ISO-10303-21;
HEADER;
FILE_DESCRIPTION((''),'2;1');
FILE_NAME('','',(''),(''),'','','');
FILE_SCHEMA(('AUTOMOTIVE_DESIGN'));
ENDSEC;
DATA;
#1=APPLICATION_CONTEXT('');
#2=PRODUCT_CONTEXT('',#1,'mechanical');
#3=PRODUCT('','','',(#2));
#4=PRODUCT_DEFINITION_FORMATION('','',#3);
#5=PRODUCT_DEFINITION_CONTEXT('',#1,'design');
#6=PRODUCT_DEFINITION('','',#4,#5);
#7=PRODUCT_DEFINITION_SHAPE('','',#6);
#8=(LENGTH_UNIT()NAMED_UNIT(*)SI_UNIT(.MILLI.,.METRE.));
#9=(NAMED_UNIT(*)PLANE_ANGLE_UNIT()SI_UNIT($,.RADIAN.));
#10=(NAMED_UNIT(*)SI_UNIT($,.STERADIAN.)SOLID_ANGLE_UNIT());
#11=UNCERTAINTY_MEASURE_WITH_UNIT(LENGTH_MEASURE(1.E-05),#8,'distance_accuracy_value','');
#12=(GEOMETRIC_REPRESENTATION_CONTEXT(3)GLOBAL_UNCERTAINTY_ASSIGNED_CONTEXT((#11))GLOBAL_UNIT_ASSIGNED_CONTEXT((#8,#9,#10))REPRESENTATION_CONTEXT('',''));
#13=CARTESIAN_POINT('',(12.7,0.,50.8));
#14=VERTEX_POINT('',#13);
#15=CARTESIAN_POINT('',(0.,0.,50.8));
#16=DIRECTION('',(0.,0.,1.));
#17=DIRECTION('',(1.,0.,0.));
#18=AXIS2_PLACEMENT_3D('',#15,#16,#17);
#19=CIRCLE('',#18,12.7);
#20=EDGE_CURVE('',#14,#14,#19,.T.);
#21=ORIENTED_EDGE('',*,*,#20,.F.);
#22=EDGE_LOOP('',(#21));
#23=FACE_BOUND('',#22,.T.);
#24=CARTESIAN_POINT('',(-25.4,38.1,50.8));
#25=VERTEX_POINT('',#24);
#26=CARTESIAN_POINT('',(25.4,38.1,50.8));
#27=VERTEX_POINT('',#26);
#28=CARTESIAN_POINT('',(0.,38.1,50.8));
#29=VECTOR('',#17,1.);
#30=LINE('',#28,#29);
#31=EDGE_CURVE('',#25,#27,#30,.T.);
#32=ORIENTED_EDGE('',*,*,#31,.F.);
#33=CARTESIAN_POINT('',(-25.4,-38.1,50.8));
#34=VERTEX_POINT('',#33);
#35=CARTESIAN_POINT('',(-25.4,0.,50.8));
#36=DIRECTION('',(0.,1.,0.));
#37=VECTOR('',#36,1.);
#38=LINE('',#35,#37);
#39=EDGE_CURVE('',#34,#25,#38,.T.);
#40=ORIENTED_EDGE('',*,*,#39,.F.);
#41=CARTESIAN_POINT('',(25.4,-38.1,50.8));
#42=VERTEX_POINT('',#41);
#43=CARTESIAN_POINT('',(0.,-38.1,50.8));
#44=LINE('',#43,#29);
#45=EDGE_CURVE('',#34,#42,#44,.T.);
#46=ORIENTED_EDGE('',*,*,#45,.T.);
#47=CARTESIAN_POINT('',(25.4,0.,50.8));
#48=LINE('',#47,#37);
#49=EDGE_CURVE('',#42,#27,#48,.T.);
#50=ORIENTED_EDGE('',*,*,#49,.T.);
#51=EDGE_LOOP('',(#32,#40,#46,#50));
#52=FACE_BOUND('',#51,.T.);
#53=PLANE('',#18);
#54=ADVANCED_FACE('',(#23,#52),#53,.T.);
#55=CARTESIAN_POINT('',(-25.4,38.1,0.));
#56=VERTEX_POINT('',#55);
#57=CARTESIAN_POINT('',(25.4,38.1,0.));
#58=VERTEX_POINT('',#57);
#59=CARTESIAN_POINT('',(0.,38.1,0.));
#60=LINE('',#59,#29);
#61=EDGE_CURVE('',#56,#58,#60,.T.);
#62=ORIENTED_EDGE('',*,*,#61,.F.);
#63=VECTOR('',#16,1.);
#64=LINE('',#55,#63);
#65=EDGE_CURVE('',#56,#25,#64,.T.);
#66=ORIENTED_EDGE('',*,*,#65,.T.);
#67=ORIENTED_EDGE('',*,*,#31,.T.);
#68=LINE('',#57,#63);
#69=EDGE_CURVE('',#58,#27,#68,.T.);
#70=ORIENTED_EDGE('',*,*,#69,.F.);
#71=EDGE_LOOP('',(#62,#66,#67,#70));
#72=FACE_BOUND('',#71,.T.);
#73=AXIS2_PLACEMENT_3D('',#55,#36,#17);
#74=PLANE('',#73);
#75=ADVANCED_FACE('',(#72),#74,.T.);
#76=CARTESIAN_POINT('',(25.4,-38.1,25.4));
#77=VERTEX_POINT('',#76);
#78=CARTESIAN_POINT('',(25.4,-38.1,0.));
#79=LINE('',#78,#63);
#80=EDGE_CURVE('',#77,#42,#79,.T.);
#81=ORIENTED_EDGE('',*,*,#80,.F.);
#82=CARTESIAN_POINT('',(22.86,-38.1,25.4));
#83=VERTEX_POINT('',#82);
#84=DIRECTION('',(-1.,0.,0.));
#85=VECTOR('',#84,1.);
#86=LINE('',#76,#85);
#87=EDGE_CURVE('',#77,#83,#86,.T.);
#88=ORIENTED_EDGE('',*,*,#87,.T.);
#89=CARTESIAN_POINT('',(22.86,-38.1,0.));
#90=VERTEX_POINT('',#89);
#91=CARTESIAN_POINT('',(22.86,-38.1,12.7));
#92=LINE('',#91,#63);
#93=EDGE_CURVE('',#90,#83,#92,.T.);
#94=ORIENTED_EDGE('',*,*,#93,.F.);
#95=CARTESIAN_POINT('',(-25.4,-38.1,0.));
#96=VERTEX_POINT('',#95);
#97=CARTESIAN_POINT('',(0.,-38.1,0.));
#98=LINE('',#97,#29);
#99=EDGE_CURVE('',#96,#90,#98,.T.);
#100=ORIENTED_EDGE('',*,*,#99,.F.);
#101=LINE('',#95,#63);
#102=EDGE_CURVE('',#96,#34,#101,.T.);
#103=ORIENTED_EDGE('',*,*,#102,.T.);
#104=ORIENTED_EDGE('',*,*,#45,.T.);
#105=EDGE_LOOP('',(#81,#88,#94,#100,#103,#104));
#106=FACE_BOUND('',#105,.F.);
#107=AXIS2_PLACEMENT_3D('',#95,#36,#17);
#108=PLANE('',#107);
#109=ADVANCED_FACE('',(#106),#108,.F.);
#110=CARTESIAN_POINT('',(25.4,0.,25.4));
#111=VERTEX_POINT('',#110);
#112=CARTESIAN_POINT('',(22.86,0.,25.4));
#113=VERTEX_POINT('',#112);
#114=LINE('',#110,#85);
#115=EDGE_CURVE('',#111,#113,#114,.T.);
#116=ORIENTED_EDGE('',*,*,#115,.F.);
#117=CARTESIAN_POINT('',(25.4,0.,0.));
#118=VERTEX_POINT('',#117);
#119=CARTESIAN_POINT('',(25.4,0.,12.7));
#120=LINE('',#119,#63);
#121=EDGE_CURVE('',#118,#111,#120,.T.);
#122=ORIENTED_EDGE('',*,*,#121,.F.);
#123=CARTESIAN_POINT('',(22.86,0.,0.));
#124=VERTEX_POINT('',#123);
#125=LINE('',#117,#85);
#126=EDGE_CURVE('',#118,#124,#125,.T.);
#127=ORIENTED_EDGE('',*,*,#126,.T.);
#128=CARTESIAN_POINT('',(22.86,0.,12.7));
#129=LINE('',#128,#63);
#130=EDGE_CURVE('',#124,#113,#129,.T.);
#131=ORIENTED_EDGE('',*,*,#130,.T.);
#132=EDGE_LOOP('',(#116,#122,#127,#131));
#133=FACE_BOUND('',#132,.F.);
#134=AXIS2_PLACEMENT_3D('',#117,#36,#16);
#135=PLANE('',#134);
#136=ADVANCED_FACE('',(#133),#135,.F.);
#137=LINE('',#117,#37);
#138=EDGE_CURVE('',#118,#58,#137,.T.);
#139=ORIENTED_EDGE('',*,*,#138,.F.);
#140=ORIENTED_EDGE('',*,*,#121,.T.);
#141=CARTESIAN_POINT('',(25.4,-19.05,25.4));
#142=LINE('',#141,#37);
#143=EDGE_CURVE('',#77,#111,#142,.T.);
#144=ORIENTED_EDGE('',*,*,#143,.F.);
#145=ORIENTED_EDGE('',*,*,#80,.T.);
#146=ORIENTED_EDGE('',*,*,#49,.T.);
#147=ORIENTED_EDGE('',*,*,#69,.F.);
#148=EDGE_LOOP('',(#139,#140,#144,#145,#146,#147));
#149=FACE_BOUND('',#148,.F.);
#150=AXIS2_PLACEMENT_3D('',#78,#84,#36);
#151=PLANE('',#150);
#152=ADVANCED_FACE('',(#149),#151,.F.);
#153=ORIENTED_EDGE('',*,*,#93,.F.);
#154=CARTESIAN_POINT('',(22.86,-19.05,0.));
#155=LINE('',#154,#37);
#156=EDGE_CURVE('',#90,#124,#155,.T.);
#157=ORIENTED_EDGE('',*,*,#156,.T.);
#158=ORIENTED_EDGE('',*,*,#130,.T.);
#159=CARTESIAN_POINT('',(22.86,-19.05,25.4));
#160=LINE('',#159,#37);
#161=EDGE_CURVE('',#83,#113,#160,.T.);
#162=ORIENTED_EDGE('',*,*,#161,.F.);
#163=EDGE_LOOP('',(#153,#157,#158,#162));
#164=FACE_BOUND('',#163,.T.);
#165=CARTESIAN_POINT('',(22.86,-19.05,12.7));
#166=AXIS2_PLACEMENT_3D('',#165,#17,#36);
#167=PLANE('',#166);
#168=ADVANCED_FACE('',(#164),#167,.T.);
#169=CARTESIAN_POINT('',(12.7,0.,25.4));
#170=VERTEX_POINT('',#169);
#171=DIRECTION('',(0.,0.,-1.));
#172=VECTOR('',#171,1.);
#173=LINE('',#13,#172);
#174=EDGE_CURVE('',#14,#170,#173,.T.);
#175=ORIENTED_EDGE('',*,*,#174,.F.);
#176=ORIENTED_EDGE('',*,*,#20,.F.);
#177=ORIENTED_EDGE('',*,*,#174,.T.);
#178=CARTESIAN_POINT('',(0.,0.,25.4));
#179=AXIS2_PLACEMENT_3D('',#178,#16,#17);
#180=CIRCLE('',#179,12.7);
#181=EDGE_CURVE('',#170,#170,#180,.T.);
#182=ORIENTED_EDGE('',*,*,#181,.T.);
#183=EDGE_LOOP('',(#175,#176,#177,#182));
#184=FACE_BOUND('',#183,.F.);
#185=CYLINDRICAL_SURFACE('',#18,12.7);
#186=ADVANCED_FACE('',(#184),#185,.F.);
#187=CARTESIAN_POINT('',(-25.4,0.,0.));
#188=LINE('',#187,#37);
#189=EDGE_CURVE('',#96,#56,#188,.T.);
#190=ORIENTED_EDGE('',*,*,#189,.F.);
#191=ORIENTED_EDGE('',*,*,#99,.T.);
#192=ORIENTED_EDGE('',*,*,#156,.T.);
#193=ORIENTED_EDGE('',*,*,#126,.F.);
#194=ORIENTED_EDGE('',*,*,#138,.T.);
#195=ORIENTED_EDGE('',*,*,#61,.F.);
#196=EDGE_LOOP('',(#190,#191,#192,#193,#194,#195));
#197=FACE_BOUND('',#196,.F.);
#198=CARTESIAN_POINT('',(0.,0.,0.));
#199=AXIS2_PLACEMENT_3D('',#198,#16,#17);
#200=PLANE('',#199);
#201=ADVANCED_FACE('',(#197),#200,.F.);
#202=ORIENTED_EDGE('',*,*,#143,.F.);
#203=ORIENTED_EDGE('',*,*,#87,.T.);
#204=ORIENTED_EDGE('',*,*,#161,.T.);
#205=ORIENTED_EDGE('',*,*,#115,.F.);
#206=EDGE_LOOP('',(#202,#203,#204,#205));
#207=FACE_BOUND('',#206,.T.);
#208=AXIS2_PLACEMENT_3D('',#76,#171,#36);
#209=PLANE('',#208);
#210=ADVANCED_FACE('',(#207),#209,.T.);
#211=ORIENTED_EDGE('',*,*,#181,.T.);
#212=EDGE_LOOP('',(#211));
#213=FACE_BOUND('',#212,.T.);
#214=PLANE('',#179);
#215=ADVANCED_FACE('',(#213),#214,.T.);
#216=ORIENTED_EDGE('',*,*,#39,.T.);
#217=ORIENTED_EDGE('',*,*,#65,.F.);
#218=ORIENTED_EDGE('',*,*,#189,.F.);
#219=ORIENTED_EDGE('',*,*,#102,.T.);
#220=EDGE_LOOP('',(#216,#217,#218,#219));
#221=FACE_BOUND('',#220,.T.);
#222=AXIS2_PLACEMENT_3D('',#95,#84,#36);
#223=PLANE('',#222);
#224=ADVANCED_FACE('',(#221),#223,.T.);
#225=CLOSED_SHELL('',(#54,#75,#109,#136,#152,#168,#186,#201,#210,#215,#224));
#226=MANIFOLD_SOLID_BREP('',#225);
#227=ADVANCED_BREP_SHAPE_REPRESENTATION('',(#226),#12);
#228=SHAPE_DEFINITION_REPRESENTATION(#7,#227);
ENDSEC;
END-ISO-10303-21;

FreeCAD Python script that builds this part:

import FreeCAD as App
import Part
import Sketcher
Q = App.Units.Quantity

doc = App.newDocument("Part")
body = doc.addObject("PartDesign::Body", "Body")

# Sketch on XY plane
sketch1 = body.newObject("Sketcher::SketchObject", "Sketch")
sketch1.AttachmentSupport = (doc.getObject("XY_Plane"), [""])
sketch1.MapMode = "FlatFace"
sketch1.addGeometry(Part.LineSegment(App.Vector(-25.4, 38.1, 0), App.Vector(-25.4, -38.1, 0)), False)
sketch1.addGeometry(Part.LineSegment(App.Vector(-25.4, -38.1, 0), App.Vector(25.4, -38.1, 0)), False)
sketch1.addGeometry(Part.LineSegment(App.Vector(25.4, -38.1, 0), App.Vector(25.4, 38.1, 0)), False)
sketch1.addGeometry(Part.LineSegment(App.Vector(25.4, 38.1, 0), App.Vector(-25.4, 38.1, 0)), False)
sketch1.addConstraint(Sketcher.Constraint("Coincident", 0, 2, 1, 1))
sketch1.addConstraint(Sketcher.Constraint("Coincident", 1, 2, 2, 1))
sketch1.addConstraint(Sketcher.Constraint("Coincident", 2, 2, 3, 1))
sketch1.addConstraint(Sketcher.Constraint("Coincident", 3, 2, 0, 1))
sketch1.addConstraint(Sketcher.Constraint("Vertical", 0))
sketch1.addConstraint(Sketcher.Constraint("Horizontal", 1))
sketch1.addConstraint(Sketcher.Constraint("Vertical", 2))
sketch1.addConstraint(Sketcher.Constraint("Horizontal", 3))
sketch1.addConstraint(Sketcher.Constraint("Symmetric", 0, 2, 2, 2, -1, 1))
sketch1.addConstraint(Sketcher.Constraint("DistanceX", 1, 1, 1, 2, Q("2 in")))
sketch1.addConstraint(Sketcher.Constraint("DistanceY", 0, 2, 0, 1, Q("3 in")))
pad1 = body.newObject("PartDesign::Pad", "Pad")
pad1.Profile = sketch1
pad1.Length = Q("2 in")

# Sketch on XY plane
sketch2 = body.newObject("Sketcher::SketchObject", "Sketch001")
sketch2.AttachmentSupport = (doc.getObject("XY_Plane"), [""])
sketch2.MapMode = "FlatFace"
sketch2.AttachmentOffset = App.Placement(App.Vector(0, 0, 2 * 25.4), App.Rotation())
sketch2.addGeometry(Part.Circle(App.Vector(0, 0, 0), App.Vector(0, 0, 1), 12.7), False)
sketch2.addConstraint(Sketcher.Constraint("Coincident", 0, 3, -1, 1))
sketch2.addConstraint(Sketcher.Constraint("Diameter", 0, Q("1 in")))
pocket1 = body.newObject("PartDesign::Pocket", "Pocket")
pocket1.Profile = sketch2
pocket1.Length = Q("1 in")

# Sketch on YZ plane
sketch3 = body.newObject("Sketcher::SketchObject", "Sketch002")
sketch3.AttachmentSupport = (doc.getObject("YZ_Plane"), [""])
sketch3.MapMode = "FlatFace"
sketch3.AttachmentOffset = App.Placement(App.Vector(0, 0, 1 * 25.4), App.Rotation())
sketch3.addGeometry(Part.LineSegment(App.Vector(-38.1, 25.4, 0), App.Vector(-38.1, 0, 0)), False)
sketch3.addGeometry(Part.LineSegment(App.Vector(-38.1, 0, 0), App.Vector(0, 0, 0)), False)
sketch3.addGeometry(Part.LineSegment(App.Vector(0, 0, 0), App.Vector(0, 25.4, 0)), False)
sketch3.addGeometry(Part.LineSegment(App.Vector(0, 25.4, 0), App.Vector(-38.1, 25.4, 0)), False)
sketch3.addConstraint(Sketcher.Constraint("Coincident", 0, 2, 1, 1))
sketch3.addConstraint(Sketcher.Constraint("Coincident", 1, 2, 2, 1))
sketch3.addConstraint(Sketcher.Constraint("Coincident", 2, 2, 3, 1))
sketch3.addConstraint(Sketcher.Constraint("Coincident", 3, 2, 0, 1))
sketch3.addConstraint(Sketcher.Constraint("Vertical", 0))
sketch3.addConstraint(Sketcher.Constraint("Horizontal", 1))
sketch3.addConstraint(Sketcher.Constraint("Vertical", 2))
sketch3.addConstraint(Sketcher.Constraint("Horizontal", 3))
sketch3.addConstraint(Sketcher.Constraint("Coincident", 1, 2, -1, 1))
sketch3.addConstraint(Sketcher.Constraint("DistanceY", 0, 2, 0, 1, Q("1 in")))
sketch3.addConstraint(Sketcher.Constraint("DistanceX", 1, 1, 1, 2, Q("1.5 in")))
pocket2 = body.newObject("PartDesign::Pocket", "Pocket001")
pocket2.Profile = sketch3
pocket2.Length = Q("0.1 in")

doc.recompute()
